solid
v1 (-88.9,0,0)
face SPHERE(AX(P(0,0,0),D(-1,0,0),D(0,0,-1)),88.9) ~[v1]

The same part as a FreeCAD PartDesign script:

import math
import FreeCAD as App
import Part
import Sketcher
from FreeCAD import Vector
Q = App.Units.Quantity

doc = App.newDocument("Part")
body = doc.addObject("PartDesign::Body", "Body")

# Sketch on XZ plane
sketch1 = body.newObject("Sketcher::SketchObject", "Sketch")
sketch1.AttachmentSupport = (doc.getObject("XZ_Plane"), [""])
sketch1.MapMode = "FlatFace"
sketch1.addGeometry([
    Part.ArcOfCircle(Part.Circle(Vector(0, 0, 0), Vector(0, 0, 1), 89), math.radians(180), math.radians(360)),
    Part.LineSegment(Vector(-89, 0, 0), Vector(89, 0, 0)),
], False)
sketch1.addConstraint([
    Sketcher.Constraint("Coincident", 0, 1, 1, 1),
    Sketcher.Constraint("Coincident", 1, 2, 0, 2),
    Sketcher.Constraint("Horizontal", 1),
    Sketcher.Constraint("Coincident", 0, 3, -1, 1),
    Sketcher.Constraint("PointOnObject", 0, 1, -1),
    Sketcher.Constraint("Radius", 0, Q("3.5 in")),
])
revolution = body.newObject("PartDesign::Revolution", "Revolution")
revolution.Profile = sketch1
revolution.ReferenceAxis = (sketch1, ["H_Axis"])
revolution.Angle = 360

doc.recompute()
